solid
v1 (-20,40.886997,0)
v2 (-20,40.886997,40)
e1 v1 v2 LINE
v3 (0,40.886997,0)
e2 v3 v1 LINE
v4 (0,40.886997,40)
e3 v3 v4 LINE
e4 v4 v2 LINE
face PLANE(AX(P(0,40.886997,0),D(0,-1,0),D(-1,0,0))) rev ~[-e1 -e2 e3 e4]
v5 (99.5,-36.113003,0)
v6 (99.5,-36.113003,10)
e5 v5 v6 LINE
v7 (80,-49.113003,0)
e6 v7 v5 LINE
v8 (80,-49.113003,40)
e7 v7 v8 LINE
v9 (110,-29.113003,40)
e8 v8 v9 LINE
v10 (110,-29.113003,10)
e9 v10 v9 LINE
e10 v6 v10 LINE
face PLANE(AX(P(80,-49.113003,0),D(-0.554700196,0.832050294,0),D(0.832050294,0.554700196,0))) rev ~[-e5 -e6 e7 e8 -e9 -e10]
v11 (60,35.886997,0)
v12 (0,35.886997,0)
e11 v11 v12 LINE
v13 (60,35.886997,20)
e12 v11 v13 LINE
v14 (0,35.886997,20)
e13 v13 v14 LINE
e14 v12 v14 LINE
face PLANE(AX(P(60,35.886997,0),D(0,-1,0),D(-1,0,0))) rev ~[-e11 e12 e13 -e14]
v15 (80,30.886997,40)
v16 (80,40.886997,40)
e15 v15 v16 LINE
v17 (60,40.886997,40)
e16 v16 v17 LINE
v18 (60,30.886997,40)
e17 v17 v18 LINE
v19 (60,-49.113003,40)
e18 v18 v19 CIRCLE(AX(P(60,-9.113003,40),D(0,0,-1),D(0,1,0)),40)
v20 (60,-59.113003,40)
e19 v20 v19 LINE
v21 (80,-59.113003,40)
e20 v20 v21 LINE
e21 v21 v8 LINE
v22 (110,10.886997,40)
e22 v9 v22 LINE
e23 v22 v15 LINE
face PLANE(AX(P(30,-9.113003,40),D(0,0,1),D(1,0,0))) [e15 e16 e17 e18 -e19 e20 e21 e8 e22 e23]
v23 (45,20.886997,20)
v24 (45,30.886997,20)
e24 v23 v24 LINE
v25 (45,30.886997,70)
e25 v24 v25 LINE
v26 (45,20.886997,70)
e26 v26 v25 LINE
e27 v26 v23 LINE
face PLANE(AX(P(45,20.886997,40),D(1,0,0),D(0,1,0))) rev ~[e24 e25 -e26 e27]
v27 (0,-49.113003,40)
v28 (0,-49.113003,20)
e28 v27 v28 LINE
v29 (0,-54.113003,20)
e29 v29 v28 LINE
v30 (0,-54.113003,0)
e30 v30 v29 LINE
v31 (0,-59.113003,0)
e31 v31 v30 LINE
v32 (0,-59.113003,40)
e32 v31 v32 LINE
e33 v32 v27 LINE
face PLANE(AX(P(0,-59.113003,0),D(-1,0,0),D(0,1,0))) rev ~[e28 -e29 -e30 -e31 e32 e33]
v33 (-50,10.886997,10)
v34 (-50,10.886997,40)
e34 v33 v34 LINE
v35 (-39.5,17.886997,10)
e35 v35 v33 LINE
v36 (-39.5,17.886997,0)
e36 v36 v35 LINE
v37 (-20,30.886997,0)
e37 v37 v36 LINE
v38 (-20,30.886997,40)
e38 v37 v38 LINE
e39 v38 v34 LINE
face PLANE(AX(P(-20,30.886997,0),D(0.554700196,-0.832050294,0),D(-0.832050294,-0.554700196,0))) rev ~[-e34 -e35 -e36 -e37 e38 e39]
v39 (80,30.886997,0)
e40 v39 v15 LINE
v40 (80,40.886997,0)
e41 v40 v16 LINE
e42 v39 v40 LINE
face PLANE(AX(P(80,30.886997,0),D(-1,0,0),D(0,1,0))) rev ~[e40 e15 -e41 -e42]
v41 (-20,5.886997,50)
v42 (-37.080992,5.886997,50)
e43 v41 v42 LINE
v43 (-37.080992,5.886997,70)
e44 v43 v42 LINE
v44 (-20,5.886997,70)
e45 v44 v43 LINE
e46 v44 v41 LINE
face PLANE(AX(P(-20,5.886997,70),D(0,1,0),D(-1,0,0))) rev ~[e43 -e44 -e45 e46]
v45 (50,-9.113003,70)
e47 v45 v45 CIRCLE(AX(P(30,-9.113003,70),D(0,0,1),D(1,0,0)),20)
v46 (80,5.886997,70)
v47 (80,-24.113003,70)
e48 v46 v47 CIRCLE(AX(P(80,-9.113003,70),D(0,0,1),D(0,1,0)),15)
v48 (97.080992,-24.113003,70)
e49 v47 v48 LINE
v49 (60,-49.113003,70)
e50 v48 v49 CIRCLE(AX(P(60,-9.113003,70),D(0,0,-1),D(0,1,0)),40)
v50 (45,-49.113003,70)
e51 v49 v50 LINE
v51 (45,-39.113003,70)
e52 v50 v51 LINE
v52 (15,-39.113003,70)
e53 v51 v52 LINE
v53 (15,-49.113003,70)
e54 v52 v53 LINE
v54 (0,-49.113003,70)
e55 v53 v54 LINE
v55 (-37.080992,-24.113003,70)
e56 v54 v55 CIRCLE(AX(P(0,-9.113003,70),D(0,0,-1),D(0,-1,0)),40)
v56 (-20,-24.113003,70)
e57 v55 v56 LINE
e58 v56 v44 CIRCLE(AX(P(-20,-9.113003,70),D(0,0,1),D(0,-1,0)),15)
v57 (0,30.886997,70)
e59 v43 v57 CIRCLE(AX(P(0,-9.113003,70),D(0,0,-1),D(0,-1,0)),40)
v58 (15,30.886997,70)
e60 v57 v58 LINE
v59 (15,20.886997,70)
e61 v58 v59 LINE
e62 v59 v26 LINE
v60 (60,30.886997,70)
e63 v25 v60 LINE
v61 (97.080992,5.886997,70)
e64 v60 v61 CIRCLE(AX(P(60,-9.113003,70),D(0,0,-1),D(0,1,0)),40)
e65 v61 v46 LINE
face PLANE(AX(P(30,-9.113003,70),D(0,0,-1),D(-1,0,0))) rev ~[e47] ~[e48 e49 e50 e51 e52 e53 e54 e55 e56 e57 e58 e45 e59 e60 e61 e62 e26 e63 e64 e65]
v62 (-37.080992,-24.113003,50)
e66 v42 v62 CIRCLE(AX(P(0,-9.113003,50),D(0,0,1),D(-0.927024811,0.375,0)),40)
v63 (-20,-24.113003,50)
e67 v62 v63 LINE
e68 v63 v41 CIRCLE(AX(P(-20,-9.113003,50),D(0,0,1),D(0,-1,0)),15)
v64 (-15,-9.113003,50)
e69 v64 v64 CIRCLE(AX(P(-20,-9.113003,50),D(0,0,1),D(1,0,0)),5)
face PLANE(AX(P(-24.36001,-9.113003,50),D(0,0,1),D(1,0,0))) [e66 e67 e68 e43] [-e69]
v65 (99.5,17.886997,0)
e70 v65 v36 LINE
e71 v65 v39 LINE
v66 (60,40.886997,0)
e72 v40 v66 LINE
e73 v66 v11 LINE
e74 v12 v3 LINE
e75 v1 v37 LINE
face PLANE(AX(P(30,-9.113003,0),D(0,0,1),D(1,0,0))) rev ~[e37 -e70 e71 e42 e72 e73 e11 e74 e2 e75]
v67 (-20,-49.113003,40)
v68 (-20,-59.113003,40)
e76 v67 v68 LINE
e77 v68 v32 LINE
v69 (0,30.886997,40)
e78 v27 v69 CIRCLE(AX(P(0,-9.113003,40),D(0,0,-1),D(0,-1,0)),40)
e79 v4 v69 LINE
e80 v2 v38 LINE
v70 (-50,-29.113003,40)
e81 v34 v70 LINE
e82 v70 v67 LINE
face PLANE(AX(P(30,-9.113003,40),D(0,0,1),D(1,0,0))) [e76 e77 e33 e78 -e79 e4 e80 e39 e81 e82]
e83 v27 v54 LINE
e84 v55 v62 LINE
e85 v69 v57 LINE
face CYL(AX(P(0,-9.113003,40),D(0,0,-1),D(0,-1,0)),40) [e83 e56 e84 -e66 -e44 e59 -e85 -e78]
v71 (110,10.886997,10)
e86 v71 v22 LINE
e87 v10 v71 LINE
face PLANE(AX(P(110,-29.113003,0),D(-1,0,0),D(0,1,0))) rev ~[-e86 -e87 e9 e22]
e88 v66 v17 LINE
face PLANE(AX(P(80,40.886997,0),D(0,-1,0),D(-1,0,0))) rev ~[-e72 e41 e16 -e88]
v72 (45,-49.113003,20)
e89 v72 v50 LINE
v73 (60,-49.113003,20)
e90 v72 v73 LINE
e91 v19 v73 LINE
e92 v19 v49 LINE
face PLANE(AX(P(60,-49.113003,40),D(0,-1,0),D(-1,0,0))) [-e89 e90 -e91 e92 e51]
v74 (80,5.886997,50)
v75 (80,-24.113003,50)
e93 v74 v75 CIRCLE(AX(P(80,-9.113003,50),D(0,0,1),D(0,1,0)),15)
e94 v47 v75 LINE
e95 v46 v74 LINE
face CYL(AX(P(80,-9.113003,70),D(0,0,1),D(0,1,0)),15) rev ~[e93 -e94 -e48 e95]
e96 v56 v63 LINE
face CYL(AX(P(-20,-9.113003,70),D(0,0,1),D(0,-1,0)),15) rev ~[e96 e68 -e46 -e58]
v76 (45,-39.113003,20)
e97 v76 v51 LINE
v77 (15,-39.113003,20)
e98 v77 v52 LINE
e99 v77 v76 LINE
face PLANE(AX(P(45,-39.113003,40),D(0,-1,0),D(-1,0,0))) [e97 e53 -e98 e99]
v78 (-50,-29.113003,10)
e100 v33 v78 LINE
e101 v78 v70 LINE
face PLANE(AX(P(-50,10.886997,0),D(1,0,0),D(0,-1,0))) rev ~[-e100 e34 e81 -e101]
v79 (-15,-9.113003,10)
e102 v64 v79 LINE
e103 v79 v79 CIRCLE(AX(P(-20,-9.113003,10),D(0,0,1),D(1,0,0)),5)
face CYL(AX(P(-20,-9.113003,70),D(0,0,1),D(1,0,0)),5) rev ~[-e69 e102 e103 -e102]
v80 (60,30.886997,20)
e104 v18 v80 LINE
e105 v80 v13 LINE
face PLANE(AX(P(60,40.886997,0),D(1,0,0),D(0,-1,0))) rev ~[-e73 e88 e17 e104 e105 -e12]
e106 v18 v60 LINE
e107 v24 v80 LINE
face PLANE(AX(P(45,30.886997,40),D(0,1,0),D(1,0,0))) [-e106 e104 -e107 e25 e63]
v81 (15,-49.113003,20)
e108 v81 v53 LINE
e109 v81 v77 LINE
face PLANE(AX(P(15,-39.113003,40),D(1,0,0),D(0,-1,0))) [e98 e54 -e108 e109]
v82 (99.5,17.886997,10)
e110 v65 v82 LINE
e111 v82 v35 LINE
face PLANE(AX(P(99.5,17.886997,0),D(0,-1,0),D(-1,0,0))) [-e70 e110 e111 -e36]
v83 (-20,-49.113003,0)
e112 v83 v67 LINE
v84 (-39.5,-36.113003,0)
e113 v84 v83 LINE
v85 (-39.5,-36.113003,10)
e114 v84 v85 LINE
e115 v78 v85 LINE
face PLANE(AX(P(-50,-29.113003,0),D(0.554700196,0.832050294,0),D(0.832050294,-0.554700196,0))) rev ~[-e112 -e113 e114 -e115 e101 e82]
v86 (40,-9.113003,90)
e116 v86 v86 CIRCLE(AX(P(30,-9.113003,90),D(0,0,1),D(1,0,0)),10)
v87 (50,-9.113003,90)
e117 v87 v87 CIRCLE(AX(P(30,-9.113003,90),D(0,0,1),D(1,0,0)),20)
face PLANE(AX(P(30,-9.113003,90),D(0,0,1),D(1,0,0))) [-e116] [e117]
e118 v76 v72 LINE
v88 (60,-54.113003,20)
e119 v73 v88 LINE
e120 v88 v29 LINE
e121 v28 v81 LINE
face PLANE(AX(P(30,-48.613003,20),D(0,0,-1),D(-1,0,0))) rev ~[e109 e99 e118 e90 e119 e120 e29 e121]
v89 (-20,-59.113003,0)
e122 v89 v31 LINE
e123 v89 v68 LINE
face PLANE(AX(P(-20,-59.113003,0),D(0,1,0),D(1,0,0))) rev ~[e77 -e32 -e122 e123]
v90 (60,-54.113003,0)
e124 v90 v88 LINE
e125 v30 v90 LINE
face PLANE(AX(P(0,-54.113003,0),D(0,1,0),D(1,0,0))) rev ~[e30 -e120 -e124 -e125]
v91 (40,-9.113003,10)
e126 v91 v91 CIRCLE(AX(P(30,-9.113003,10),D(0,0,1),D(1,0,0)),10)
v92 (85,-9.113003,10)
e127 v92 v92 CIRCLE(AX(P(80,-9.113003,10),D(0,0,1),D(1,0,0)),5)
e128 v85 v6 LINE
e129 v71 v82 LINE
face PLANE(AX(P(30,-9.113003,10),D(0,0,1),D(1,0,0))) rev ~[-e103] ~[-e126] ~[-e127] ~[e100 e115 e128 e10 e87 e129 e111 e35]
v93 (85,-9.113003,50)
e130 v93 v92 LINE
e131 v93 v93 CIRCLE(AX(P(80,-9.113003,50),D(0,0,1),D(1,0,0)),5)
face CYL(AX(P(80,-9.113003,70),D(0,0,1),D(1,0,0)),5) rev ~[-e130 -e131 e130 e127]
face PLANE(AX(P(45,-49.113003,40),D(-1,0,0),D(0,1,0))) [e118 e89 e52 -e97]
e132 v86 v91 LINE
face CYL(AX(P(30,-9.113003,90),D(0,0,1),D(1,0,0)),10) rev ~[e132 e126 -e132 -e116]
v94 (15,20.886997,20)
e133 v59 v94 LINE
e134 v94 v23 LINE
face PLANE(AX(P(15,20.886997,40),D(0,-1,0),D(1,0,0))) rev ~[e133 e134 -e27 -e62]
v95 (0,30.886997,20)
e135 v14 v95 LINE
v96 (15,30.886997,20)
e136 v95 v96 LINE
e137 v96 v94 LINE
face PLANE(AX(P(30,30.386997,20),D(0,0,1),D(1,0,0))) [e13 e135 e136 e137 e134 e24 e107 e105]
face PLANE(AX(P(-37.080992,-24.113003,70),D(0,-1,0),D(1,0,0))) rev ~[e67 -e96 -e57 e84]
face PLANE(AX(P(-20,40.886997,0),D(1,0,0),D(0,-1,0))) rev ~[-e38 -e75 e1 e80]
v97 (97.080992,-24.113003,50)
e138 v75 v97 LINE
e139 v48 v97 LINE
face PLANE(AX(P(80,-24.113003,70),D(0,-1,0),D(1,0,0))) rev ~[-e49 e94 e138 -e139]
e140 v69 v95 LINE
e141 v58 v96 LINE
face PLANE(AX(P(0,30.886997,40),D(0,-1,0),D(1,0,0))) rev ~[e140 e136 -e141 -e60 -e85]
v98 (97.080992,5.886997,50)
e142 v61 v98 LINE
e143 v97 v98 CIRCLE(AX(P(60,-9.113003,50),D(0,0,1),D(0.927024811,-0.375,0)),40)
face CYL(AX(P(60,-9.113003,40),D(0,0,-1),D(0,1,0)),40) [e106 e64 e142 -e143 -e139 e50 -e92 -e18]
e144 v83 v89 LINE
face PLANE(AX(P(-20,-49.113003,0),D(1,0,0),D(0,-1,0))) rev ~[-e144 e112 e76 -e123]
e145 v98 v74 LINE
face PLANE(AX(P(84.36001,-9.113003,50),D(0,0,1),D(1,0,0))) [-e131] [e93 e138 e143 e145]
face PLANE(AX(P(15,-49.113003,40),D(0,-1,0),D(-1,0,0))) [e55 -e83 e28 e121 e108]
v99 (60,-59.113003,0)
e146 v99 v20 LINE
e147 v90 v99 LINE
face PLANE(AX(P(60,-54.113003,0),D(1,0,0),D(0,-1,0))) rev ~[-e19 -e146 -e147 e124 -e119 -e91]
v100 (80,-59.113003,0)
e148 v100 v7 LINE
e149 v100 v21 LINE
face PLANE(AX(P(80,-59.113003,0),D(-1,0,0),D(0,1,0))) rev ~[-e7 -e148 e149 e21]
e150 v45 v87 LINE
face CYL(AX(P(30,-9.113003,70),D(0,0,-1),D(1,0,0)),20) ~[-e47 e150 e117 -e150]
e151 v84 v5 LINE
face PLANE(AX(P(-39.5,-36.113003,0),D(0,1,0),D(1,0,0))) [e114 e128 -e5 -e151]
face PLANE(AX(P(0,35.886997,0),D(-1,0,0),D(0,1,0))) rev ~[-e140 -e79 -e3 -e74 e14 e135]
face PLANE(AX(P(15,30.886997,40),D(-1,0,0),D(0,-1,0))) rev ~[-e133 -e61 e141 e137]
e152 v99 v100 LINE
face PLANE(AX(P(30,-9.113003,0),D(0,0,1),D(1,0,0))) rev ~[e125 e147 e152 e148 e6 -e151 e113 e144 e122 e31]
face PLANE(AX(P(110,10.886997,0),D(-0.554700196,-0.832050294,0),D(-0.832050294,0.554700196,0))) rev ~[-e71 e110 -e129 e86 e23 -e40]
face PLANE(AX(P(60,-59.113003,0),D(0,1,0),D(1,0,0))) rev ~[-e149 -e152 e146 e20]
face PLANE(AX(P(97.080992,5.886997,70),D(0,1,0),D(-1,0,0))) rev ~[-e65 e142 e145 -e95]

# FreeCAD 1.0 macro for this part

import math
import FreeCAD as App
import Part
import Sketcher
from FreeCAD import Vector
Q = App.Units.Quantity

doc = App.newDocument("Part")
params = doc.addObject("Spreadsheet::Sheet", "Params")
for row, (alias, value) in enumerate([
    ("sketch1_width", "20 mm"),
    ("sketch1_width2", "60 mm"),
    ("sketch1_height", "10 mm"),
    ("sketch1_height2", "40 mm"),
    ("sketch1_height3", "5 mm"),
    ("pad1_length", "40 mm"),
    ("sketch2_radius", "40 mm"),
    ("sketch2_width", "15 mm"),
    ("sketch2_width2", "30 mm"),
    ("sketch2_height", "10 mm"),
    ("pad2_length", "30 mm"),
    ("sketch3_diameter", "40 mm"),
    ("pad3_length", "20 mm"),
    ("sketch4_diameter", "20 mm"),
    ("pocket1_length", "185 mm"),
    ("sketch5_diameter", "10 mm"),
    ("pocket2_length", "185 mm"),
    ("sketch6_diameter", "10 mm"),
    ("sketch6_radius", "15 mm"),
    ("sketch6_radius2", "40 mm"),
    ("pocket3_length", "20 mm"),
    ("sketch7_width", "15 mm"),
    ("sketch7_width2", "30 mm"),
    ("sketch7_height", "5 mm"),
    ("sketch7_height2", "10 mm"),
    ("pocket4_length", "20 mm"),
    ("sketch8_width", "60 mm"),
    ("sketch8_width2", "15 mm"),
    ("sketch8_height", "5 mm"),
    ("sketch8_height2", "10 mm"),
    ("pocket5_length", "20 mm"),
    ("sketch9_width", "139 mm"),
    ("sketch9_height", "40 mm"),
    ("pocket6_length", "10 mm"),
], start=1):
    params.set(f"A{row}", alias)
    params.set(f"B{row}", "=" + value)
    params.setAlias(f"B{row}", alias)

body = doc.addObject("PartDesign::Body", "Body")

# Sketch on XY plane
sketch1 = doc.addObject("Sketcher::SketchObject", "Sketch")
body.addObject(sketch1)
sketch1.AttachmentSupport = (doc.XY_Plane, [""])
sketch1.MapMode = "FlatFace"
sketch1.addGeometry([
    Part.LineSegment(Vector(0, 40.886997, 0), Vector(-20, 40.886997, 0)),  # 0
    Part.LineSegment(Vector(-20, 40.886997, 0), Vector(-20, 30.886997, 0)),  # 1
    Part.LineSegment(Vector(-20, 30.886997, 0), Vector(-50, 10.886997, 0)),  # 2
    Part.LineSegment(Vector(-50, 10.886997, 0), Vector(-50, -29.113003, 0)),  # 3
    Part.LineSegment(Vector(-50, -29.113003, 0), Vector(-20, -49.113003, 0)),  # 4
    Part.LineSegment(Vector(-20, -49.113003, 0), Vector(-20, -59.113003, 0)),  # 5
    Part.LineSegment(Vector(-20, -59.113003, 0), Vector(0, -59.113003, 0)),  # 6
    Part.LineSegment(Vector(0, -59.113003, 0), Vector(0, -54.113003, 0)),  # 7
    Part.LineSegment(Vector(0, -54.113003, 0), Vector(60, -54.113003, 0)),  # 8
    Part.LineSegment(Vector(60, -54.113003, 0), Vector(60, -59.113003, 0)),  # 9
    Part.LineSegment(Vector(60, -59.113003, 0), Vector(80, -59.113003, 0)),  # 10
    Part.LineSegment(Vector(80, -59.113003, 0), Vector(80, -49.113003, 0)),  # 11
    Part.LineSegment(Vector(80, -49.113003, 0), Vector(110, -29.113003, 0)),  # 12
    Part.LineSegment(Vector(110, -29.113003, 0), Vector(110, 10.886997, 0)),  # 13
    Part.LineSegment(Vector(110, 10.886997, 0), Vector(80, 30.886997, 0)),  # 14
    Part.LineSegment(Vector(80, 30.886997, 0), Vector(80, 40.886997, 0)),  # 15
    Part.LineSegment(Vector(80, 40.886997, 0), Vector(60, 40.886997, 0)),  # 16
    Part.LineSegment(Vector(60, 40.886997, 0), Vector(60, 35.886997, 0)),  # 17
    Part.LineSegment(Vector(60, 35.886997, 0), Vector(0, 35.886997, 0)),  # 18
    Part.LineSegment(Vector(0, 35.886997, 0), Vector(0, 40.886997, 0)),  # 19
], False)
sketch1.addConstraint([
    Sketcher.Constraint("Coincident", 0, 2, 1, 1),
    Sketcher.Constraint("Coincident", 1, 2, 2, 1),
    Sketcher.Constraint("Coincident", 2, 2, 3, 1),
    Sketcher.Constraint("Coincident", 3, 2, 4, 1),
    Sketcher.Constraint("Coincident", 4, 2, 5, 1),
    Sketcher.Constraint("Coincident", 5, 2, 6, 1),
    Sketcher.Constraint("Coincident", 6, 2, 7, 1),
    Sketcher.Constraint("Coincident", 7, 2, 8, 1),
    Sketcher.Constraint("Coincident", 8, 2, 9, 1),
    Sketcher.Constraint("Coincident", 9, 2, 10, 1),
    Sketcher.Constraint("Coincident", 10, 2, 11, 1),
    Sketcher.Constraint("Coincident", 11, 2, 12, 1),
    Sketcher.Constraint("Coincident", 12, 2, 13, 1),
    Sketcher.Constraint("Coincident", 13, 2, 14, 1),
    Sketcher.Constraint("Coincident", 14, 2, 15, 1),
    Sketcher.Constraint("Coincident", 15, 2, 16, 1),
    Sketcher.Constraint("Coincident", 16, 2, 17, 1),
    Sketcher.Constraint("Coincident", 17, 2, 18, 1),
    Sketcher.Constraint("Coincident", 18, 2, 19, 1),
    Sketcher.Constraint("Coincident", 19, 2, 0, 1),
    Sketcher.Constraint("Horizontal", 0),
    Sketcher.Constraint("Vertical", 1),
    Sketcher.Constraint("Vertical", 3),
    Sketcher.Constraint("Vertical", 5),
    Sketcher.Constraint("Horizontal", 6),
    Sketcher.Constraint("Vertical", 7),
    Sketcher.Constraint("Horizontal", 8),
    Sketcher.Constraint("Vertical", 9),
    Sketcher.Constraint("Horizontal", 10),
    Sketcher.Constraint("Vertical", 11),
    Sketcher.Constraint("Vertical", 13),
    Sketcher.Constraint("Vertical", 15),
    Sketcher.Constraint("Horizontal", 16),
    Sketcher.Constraint("Vertical", 17),
    Sketcher.Constraint("Horizontal", 18),
    Sketcher.Constraint("Vertical", 19),
    Sketcher.Constraint("PointOnObject", 6, 2, -2),
    Sketcher.Constraint("PointOnObject", 18, 2, -2),
    Sketcher.Constraint("Parallel", 2, 12),
    Sketcher.Constraint("Parallel", 4, 14),
    Sketcher.Constraint("Horizontal", 6, 2, 9, 2),
    Sketcher.Constraint("Horizontal", 4, 2, 11, 2),
    Sketcher.Constraint("Horizontal", 3, 2, 12, 2),
    Sketcher.Constraint("Horizontal", 2, 2, 13, 2),
    Sketcher.Constraint("Horizontal", 1, 2, 14, 2),
    Sketcher.Constraint("Horizontal", 0, 2, 15, 2),
    Sketcher.Constraint("Vertical", 1, 2, 4, 2),
    Sketcher.Constraint("Vertical", 11, 2, 14, 2),
    Sketcher.Constraint("Vertical", 9, 2, 16, 2),
    Sketcher.Constraint("Equal", 6, 10),
    Sketcher.Constraint("Equal", 1, 5),
    Sketcher.Constraint("Equal", 9, 17),
    Sketcher.Constraint("DistanceX", 0, 2, 0, 1, Q("20 mm")),
    Sketcher.Constraint("DistanceX", 8, 1, 8, 2, Q("60 mm")),
    Sketcher.Constraint("DistanceY", 1, 2, 1, 1, Q("10 mm")),
    Sketcher.Constraint("DistanceY", 3, 2, 3, 1, Q("40 mm")),
    Sketcher.Constraint("DistanceY", 7, 1, 7, 2, Q("5 mm")),
    Sketcher.Constraint("DistanceX", 2, 2, -1, 1, Q("50 mm")),
    Sketcher.Constraint("DistanceY", 2, 2, 1, 2, Q("20 mm")),
    Sketcher.Constraint("DistanceY", -1, 1, 0, 2, Q("40.886997 mm")),
])
sketch1.setExpression("Constraints[52]", "Params.sketch1_width")
sketch1.setExpression("Constraints[53]", "Params.sketch1_width2")
sketch1.setExpression("Constraints[54]", "Params.sketch1_height")
sketch1.setExpression("Constraints[55]", "Params.sketch1_height2")
sketch1.setExpression("Constraints[56]", "Params.sketch1_height3")
pad1 = doc.addObject("PartDesign::Pad", "Pad")
body.addObject(pad1)
pad1.Profile = sketch1
pad1.setExpression("Length", "Params.pad1_length")

# Sketch on XY plane
sketch2 = doc.addObject("Sketcher::SketchObject", "Sketch001")
body.addObject(sketch2)
sketch2.AttachmentSupport = (doc.XY_Plane, [""])
sketch2.MapMode = "FlatFace"
sketch2.AttachmentOffset = App.Placement(Vector(0, 0, 40), App.Rotation())
sketch2.addGeometry([
    Part.LineSegment(Vector(15, 30.886997, 0), Vector(0, 30.886997, 0)),  # 0
    Part.ArcOfCircle(Part.Circle(Vector(0, -9.113003, 0), Vector(0, 0, 1), 40), math.radians(90), math.radians(270)),  # 1
    Part.LineSegment(Vector(0, -49.113003, 0), Vector(15, -49.113003, 0)),  # 2
    Part.LineSegment(Vector(15, -49.113003, 0), Vector(15, -39.113003, 0)),  # 3
    Part.LineSegment(Vector(15, -39.113003, 0), Vector(45, -39.113003, 0)),  # 4
    Part.LineSegment(Vector(45, -39.113003, 0), Vector(45, -49.113003, 0)),  # 5
    Part.LineSegment(Vector(45, -49.113003, 0), Vector(60, -49.113003, 0)),  # 6
    Part.ArcOfCircle(Part.Circle(Vector(60, -9.113003, 0), Vector(0, 0, 1), 40), math.radians(-90), math.radians(90)),  # 7
    Part.LineSegment(Vector(60, 30.886997, 0), Vector(45, 30.886997, 0)),  # 8
    Part.LineSegment(Vector(45, 30.886997, 0), Vector(45, 20.886997, 0)),  # 9
    Part.LineSegment(Vector(45, 20.886997, 0), Vector(15, 20.886997, 0)),  # 10
    Part.LineSegment(Vector(15, 20.886997, 0), Vector(15, 30.886997, 0)),  # 11
], False)
sketch2.addConstraint([
    Sketcher.Constraint("Tangent", 0, 2, 1, 1),
    Sketcher.Constraint("Tangent", 1, 2, 2, 1),
    Sketcher.Constraint("Coincident", 2, 2, 3, 1),
    Sketcher.Constraint("Coincident", 3, 2, 4, 1),
    Sketcher.Constraint("Coincident", 4, 2, 5, 1),
    Sketcher.Constraint("Coincident", 5, 2, 6, 1),
    Sketcher.Constraint("Tangent", 6, 2, 7, 1),
    Sketcher.Constraint("Tangent", 7, 2, 8, 1),
    Sketcher.Constraint("Coincident", 8, 2, 9, 1),
    Sketcher.Constraint("Coincident", 9, 2, 10, 1),
    Sketcher.Constraint("Coincident", 10, 2, 11, 1),
    Sketcher.Constraint("Coincident", 11, 2, 0, 1),
    Sketcher.Constraint("Horizontal", 0),
    Sketcher.Constraint("Horizontal", 2),
    Sketcher.Constraint("Vertical", 3),
    Sketcher.Constraint("Horizontal", 4),
    Sketcher.Constraint("Vertical", 5),
    Sketcher.Constraint("Horizontal", 6),
    Sketcher.Constraint("Horizontal", 8),
    Sketcher.Constraint("Vertical", 9),
    Sketcher.Constraint("Horizontal", 10),
    Sketcher.Constraint("Vertical", 11),
    Sketcher.Constraint("Equal", 1, 7),
    Sketcher.Constraint("PointOnObject", 1, 3, -2),
    Sketcher.Constraint("Horizontal", 1, 3, 7, 3),
    Sketcher.Constraint("Vertical", 5, 2, 8, 2),
    Sketcher.Constraint("Vertical", 3, 2, 10, 2),
    Sketcher.Constraint("Equal", 2, 6),
    Sketcher.Constraint("Equal", 5, 9),
    Sketcher.Constraint("Radius", 1, Q("40 mm")),
    Sketcher.Constraint("DistanceX", 0, 2, 0, 1, Q("15 mm")),
    Sketcher.Constraint("DistanceX", 4, 1, 4, 2, Q("30 mm")),
    Sketcher.Constraint("DistanceY", 3, 1, 3, 2, Q("10 mm")),
    Sketcher.Constraint("DistanceY", 1, 3, -1, 1, Q("9.113003 mm")),
])
sketch2.setExpression("Constraints[29]", "Params.sketch2_radius")
sketch2.setExpression("Constraints[30]", "Params.sketch2_width")
sketch2.setExpression("Constraints[31]", "Params.sketch2_width2")
sketch2.setExpression("Constraints[32]", "Params.sketch2_height")
pad2 = doc.addObject("PartDesign::Pad", "Pad001")
body.addObject(pad2)
pad2.Profile = sketch2
pad2.setExpression("Length", "Params.pad2_length")

# Sketch on XY plane
sketch3 = doc.addObject("Sketcher::SketchObject", "Sketch002")
body.addObject(sketch3)
sketch3.AttachmentSupport = (doc.XY_Plane, [""])
sketch3.MapMode = "FlatFace"
sketch3.AttachmentOffset = App.Placement(Vector(0, 0, 70), App.Rotation())
sketch3.addGeometry(Part.Circle(Vector(30, -9.113003, 0), Vector(0, 0, 1), 20), False)
sketch3.addConstraint([
    Sketcher.Constraint("Diameter", 0, Q("40 mm")),
    Sketcher.Constraint("DistanceX", -1, 1, 0, 3, Q("30 mm")),
    Sketcher.Constraint("DistanceY", 0, 3, -1, 1, Q("9.113003 mm")),
])
sketch3.setExpression("Constraints[0]", "Params.sketch3_diameter")
pad3 = doc.addObject("PartDesign::Pad", "Pad002")
body.addObject(pad3)
pad3.Profile = sketch3
pad3.setExpression("Length", "Params.pad3_length")

# Sketch on XY plane
sketch4 = doc.addObject("Sketcher::SketchObject", "Sketch003")
body.addObject(sketch4)
sketch4.AttachmentSupport = (doc.XY_Plane, [""])
sketch4.MapMode = "FlatFace"
sketch4.AttachmentOffset = App.Placement(Vector(0, 0, 90), App.Rotation())
sketch4.addGeometry(Part.Circle(Vector(30, -9.113003, 0), Vector(0, 0, 1), 10), False)
sketch4.addConstraint([
    Sketcher.Constraint("Diameter", 0, Q("20 mm")),
    Sketcher.Constraint("DistanceX", -1, 1, 0, 3, Q("30 mm")),
    Sketcher.Constraint("DistanceY", 0, 3, -1, 1, Q("9.113003 mm")),
])
sketch4.setExpression("Constraints[0]", "Params.sketch4_diameter")
pocket1 = doc.addObject("PartDesign::Pocket", "Pocket")
body.addObject(pocket1)
pocket1.Profile = sketch4
pocket1.setExpression("Length", "Params.pocket1_length")

# Sketch on XY plane
sketch5 = doc.addObject("Sketcher::SketchObject", "Sketch004")
body.addObject(sketch5)
sketch5.AttachmentSupport = (doc.XY_Plane, [""])
sketch5.MapMode = "FlatFace"
sketch5.AttachmentOffset = App.Placement(Vector(0, 0, 70), App.Rotation())
sketch5.addGeometry([
    Part.Circle(Vector(-20, -9.113003, 0), Vector(0, 0, 1), 5),
    Part.Circle(Vector(80, -9.113003, 0), Vector(0, 0, 1), 5),
], False)
sketch5.addConstraint([
    Sketcher.Constraint("Equal", 0, 1),
    Sketcher.Constraint("Horizontal", 0, 3, 1, 3),
    Sketcher.Constraint("Diameter", 0, Q("10 mm")),
    Sketcher.Constraint("DistanceX", 0, 3, -1, 1, Q("20 mm")),
    Sketcher.Constraint("DistanceX", -1, 1, 1, 3, Q("80 mm")),
    Sketcher.Constraint("DistanceY", 0, 3, -1, 1, Q("9.113003 mm")),
])
sketch5.setExpression("Constraints[2]", "Params.sketch5_diameter")
pocket2 = doc.addObject("PartDesign::Pocket", "Pocket001")
body.addObject(pocket2)
pocket2.Profile = sketch5
pocket2.setExpression("Length", "Params.pocket2_length")

# Sketch on XY plane
sketch6 = doc.addObject("Sketcher::SketchObject", "Sketch005")
body.addObject(sketch6)
sketch6.AttachmentSupport = (doc.XY_Plane, [""])
sketch6.MapMode = "FlatFace"
sketch6.AttachmentOffset = App.Placement(Vector(0, 0, 70), App.Rotation())
sketch6.addGeometry([
    Part.ArcOfCircle(Part.Circle(Vector(-20, -9.113003, 0), Vector(0, 0, 1), 15), math.radians(-90), math.radians(90)),  # 0
    Part.LineSegment(Vector(-20, 5.886997, 0), Vector(-37.080992, 5.886997, 0)),  # 1
    Part.ArcOfCircle(Part.Circle(Vector(0, -9.113003, 0), Vector(0, 0, 1), 40), math.radians(157.975687), math.radians(202.024313)),  # 2
    Part.LineSegment(Vector(-37.080992, -24.113003, 0), Vector(-20, -24.113003, 0)),  # 3
    Part.Circle(Vector(-20, -9.113003, 0), Vector(0, 0, 1), 5),  # 4
    Part.LineSegment(Vector(97.080992, 5.886997, 0), Vector(80, 5.886997, 0)),  # 5
    Part.ArcOfCircle(Part.Circle(Vector(80, -9.113003, 0), Vector(0, 0, 1), 15), math.radians(90), math.radians(270)),  # 6
    Part.LineSegment(Vector(80, -24.113003, 0), Vector(97.080992, -24.113003, 0)),  # 7
    Part.ArcOfCircle(Part.Circle(Vector(60, -9.113003, 0), Vector(0, 0, 1), 40), math.radians(-22.024313), math.radians(22.024313)),  # 8
    Part.Circle(Vector(80, -9.113003, 0), Vector(0, 0, 1), 5),  # 9
], False)
sketch6.addConstraint([
    Sketcher.Constraint("Tangent", 0, 2, 1, 1),
    Sketcher.Constraint("Coincident", 1, 2, 2, 1),
    Sketcher.Constraint("Coincident", 2, 2, 3, 1),
    Sketcher.Constraint("Tangent", 3, 2, 0, 1),
    Sketcher.Constraint("Tangent", 5, 2, 6, 1),
    Sketcher.Constraint("Tangent", 6, 2, 7, 1),
    Sketcher.Constraint("Coincident", 7, 2, 8, 1),
    Sketcher.Constraint("Coincident", 8, 2, 5, 1),
    Sketcher.Constraint("Horizontal", 1),
    Sketcher.Constraint("Horizontal", 3),
    Sketcher.Constraint("Horizontal", 5),
    Sketcher.Constraint("Horizontal", 7),
    Sketcher.Constraint("Coincident", 4, 3, 0, 3),
    Sketcher.Constraint("Coincident", 9, 3, 6, 3),
    Sketcher.Constraint("Equal", 0, 6),
    Sketcher.Constraint("Equal", 2, 8),
    Sketcher.Constraint("Equal", 4, 9),
    Sketcher.Constraint("PointOnObject", 2, 3, -2),
    Sketcher.Constraint("Horizontal", 0, 3, 2, 3),
    Sketcher.Constraint("Horizontal", 4, 3, 6, 3),
    Sketcher.Constraint("Horizontal", 6, 3, 8, 3),
    Sketcher.Constraint("Equal", 3, 5),
    Sketcher.Constraint("Diameter", 4, Q("10 mm")),
    Sketcher.Constraint("Radius", 0, Q("15 mm")),
    Sketcher.Constraint("Radius", 2, Q("40 mm")),
    Sketcher.Constraint("DistanceX", 0, 3, -1, 1, Q("20 mm")),
    Sketcher.Constraint("DistanceX", -1, 1, 6, 3, Q("80 mm")),
    Sketcher.Constraint("DistanceY", 0, 3, -1, 1, Q("9.113003 mm")),
])
sketch6.setExpression("Constraints[22]", "Params.sketch6_diameter")
sketch6.setExpression("Constraints[23]", "Params.sketch6_radius")
sketch6.setExpression("Constraints[24]", "Params.sketch6_radius2")
pocket3 = doc.addObject("PartDesign::Pocket", "Pocket002")
body.addObject(pocket3)
pocket3.Profile = sketch6
pocket3.setExpression("Length", "Params.pocket3_length")

# Sketch on XY plane
sketch7 = doc.addObject("Sketcher::SketchObject", "Sketch006")
body.addObject(sketch7)
sketch7.AttachmentSupport = (doc.XY_Plane, [""])
sketch7.MapMode = "FlatFace"
sketch7.AttachmentOffset = App.Placement(Vector(0, 0, 40), App.Rotation())
sketch7.addGeometry([
    Part.LineSegment(Vector(0, 35.886997, 0), Vector(0, 30.886997, 0)),  # 0
    Part.LineSegment(Vector(0, 30.886997, 0), Vector(15, 30.886997, 0)),  # 1
    Part.LineSegment(Vector(15, 30.886997, 0), Vector(15, 20.886997, 0)),  # 2
    Part.LineSegment(Vector(15, 20.886997, 0), Vector(45, 20.886997, 0)),  # 3
    Part.LineSegment(Vector(45, 20.886997, 0), Vector(45, 30.886997, 0)),  # 4
    Part.LineSegment(Vector(45, 30.886997, 0), Vector(60, 30.886997, 0)),  # 5
    Part.LineSegment(Vector(60, 30.886997, 0), Vector(60, 35.886997, 0)),  # 6
    Part.LineSegment(Vector(60, 35.886997, 0), Vector(0, 35.886997, 0)),  # 7
], False)
sketch7.addConstraint([
    Sketcher.Constraint("Coincident", 0, 2, 1, 1),
    Sketcher.Constraint("Coincident", 1, 2, 2, 1),
    Sketcher.Constraint("Coincident", 2, 2, 3, 1),
    Sketcher.Constraint("Coincident", 3, 2, 4, 1),
    Sketcher.Constraint("Coincident", 4, 2, 5, 1),
    Sketcher.Constraint("Coincident", 5, 2, 6, 1),
    Sketcher.Constraint("Coincident", 6, 2, 7, 1),
    Sketcher.Constraint("Coincident", 7, 2, 0, 1),
    Sketcher.Constraint("Vertical", 0),
    Sketcher.Constraint("Horizontal", 1),
    Sketcher.Constraint("Vertical", 2),
    Sketcher.Constraint("Horizontal", 3),
    Sketcher.Constraint("Vertical", 4),
    Sketcher.Constraint("Horizontal", 5),
    Sketcher.Constraint("Vertical", 6),
    Sketcher.Constraint("Horizontal", 7),
    Sketcher.Constraint("PointOnObject", 0, 2, -2),
    Sketcher.Constraint("Horizontal", 1, 2, 4, 2),
    Sketcher.Constraint("Equal", 1, 5),
    Sketcher.Constraint("DistanceX", 1, 1, 1, 2, Q("15 mm")),
    Sketcher.Constraint("DistanceX", 3, 1, 3, 2, Q("30 mm")),
    Sketcher.Constraint("DistanceY", 0, 2, 0, 1, Q("5 mm")),
    Sketcher.Constraint("DistanceY", 2, 2, 2, 1, Q("10 mm")),
    Sketcher.Constraint("DistanceY", -1, 1, 0, 2, Q("30.886997 mm")),
])
sketch7.setExpression("Constraints[19]", "Params.sketch7_width")
sketch7.setExpression("Constraints[20]", "Params.sketch7_width2")
sketch7.setExpression("Constraints[21]", "Params.sketch7_height")
sketch7.setExpression("Constraints[22]", "Params.sketch7_height2")
pocket4 = doc.addObject("PartDesign::Pocket", "Pocket003")
body.addObject(pocket4)
pocket4.Profile = sketch7
pocket4.setExpression("Length", "Params.pocket4_length")

# Sketch on XY plane
sketch8 = doc.addObject("Sketcher::SketchObject", "Sketch007")
body.addObject(sketch8)
sketch8.AttachmentSupport = (doc.XY_Plane, [""])
sketch8.MapMode = "FlatFace"
sketch8.AttachmentOffset = App.Placement(Vector(0, 0, 40), App.Rotation())
sketch8.addGeometry([
    Part.LineSegment(Vector(0, -49.113003, 0), Vector(0, -54.113003, 0)),  # 0
    Part.LineSegment(Vector(0, -54.113003, 0), Vector(60, -54.113003, 0)),  # 1
    Part.LineSegment(Vector(60, -54.113003, 0), Vector(60, -49.113003, 0)),  # 2
    Part.LineSegment(Vector(60, -49.113003, 0), Vector(45, -49.113003, 0)),  # 3
    Part.LineSegment(Vector(45, -49.113003, 0), Vector(45, -39.113003, 0)),  # 4
    Part.LineSegment(Vector(45, -39.113003, 0), Vector(15, -39.113003, 0)),  # 5
    Part.LineSegment(Vector(15, -39.113003, 0), Vector(15, -49.113003, 0)),  # 6
    Part.LineSegment(Vector(15, -49.113003, 0), Vector(0, -49.113003, 0)),  # 7
], False)
sketch8.addConstraint([
    Sketcher.Constraint("Coincident", 0, 2, 1, 1),
    Sketcher.Constraint("Coincident", 1, 2, 2, 1),
    Sketcher.Constraint("Coincident", 2, 2, 3, 1),
    Sketcher.Constraint("Coincident", 3, 2, 4, 1),
    Sketcher.Constraint("Coincident", 4, 2, 5, 1),
    Sketcher.Constraint("Coincident", 5, 2, 6, 1),
    Sketcher.Constraint("Coincident", 6, 2, 7, 1),
    Sketcher.Constraint("Coincident", 7, 2, 0, 1),
    Sketcher.Constraint("Vertical", 0),
    Sketcher.Constraint("Horizontal", 1),
    Sketcher.Constraint("Vertical", 2),
    Sketcher.Constraint("Horizontal", 3),
    Sketcher.Constraint("Vertical", 4),
    Sketcher.Constraint("Horizontal", 5),
    Sketcher.Constraint("Vertical", 6),
    Sketcher.Constraint("Horizontal", 7),
    Sketcher.Constraint("PointOnObject", 0, 2, -2),
    Sketcher.Constraint("Horizontal", 3, 2, 6, 2),
    Sketcher.Constraint("Equal", 3, 7),
    Sketcher.Constraint("DistanceX", 1, 1, 1, 2, Q("60 mm")),
    Sketcher.Constraint("DistanceX", 3, 2, 3, 1, Q("15 mm")),
    Sketcher.Constraint("DistanceY", 0, 2, 0, 1, Q("5 mm")),
    Sketcher.Constraint("DistanceY", 4, 1, 4, 2, Q("10 mm")),
    Sketcher.Constraint("DistanceY", 0, 2, -1, 1, Q("54.113003 mm")),
])
sketch8.setExpression("Constraints[19]", "Params.sketch8_width")
sketch8.setExpression("Constraints[20]", "Params.sketch8_width2")
sketch8.setExpression("Constraints[21]", "Params.sketch8_height")
sketch8.setExpression("Constraints[22]", "Params.sketch8_height2")
pocket5 = doc.addObject("PartDesign::Pocket", "Pocket004")
body.addObject(pocket5)
pocket5.Profile = sketch8
pocket5.setExpression("Length", "Params.pocket5_length")

# Sketch on XY plane
sketch9 = doc.addObject("Sketcher::SketchObject", "Sketch008")
body.addObject(sketch9)
sketch9.AttachmentSupport = (doc.XY_Plane, [""])
sketch9.MapMode = "FlatFace"
sketch9.addGeometry([
    Part.LineSegment(Vector(-39.5, 17.886997, 0), Vector(99.5, 17.886997, 0)),  # 0
    Part.LineSegment(Vector(99.5, 17.886997, 0), Vector(110, 10.886997, 0)),  # 1
    Part.LineSegment(Vector(110, 10.886997, 0), Vector(110, -29.113003, 0)),  # 2
    Part.LineSegment(Vector(110, -29.113003, 0), Vector(99.5, -36.113003, 0)),  # 3
    Part.LineSegment(Vector(99.5, -36.113003, 0), Vector(-39.5, -36.113003, 0)),  # 4
    Part.LineSegment(Vector(-39.5, -36.113003, 0), Vector(-50, -29.113003, 0)),  # 5
    Part.LineSegment(Vector(-50, -29.113003, 0), Vector(-50, 10.886997, 0)),  # 6
    Part.LineSegment(Vector(-50, 10.886997, 0), Vector(-39.5, 17.886997, 0)),  # 7
], False)
sketch9.addConstraint([
    Sketcher.Constraint("Coincident", 0, 2, 1, 1),
    Sketcher.Constraint("Coincident", 1, 2, 2, 1),
    Sketcher.Constraint("Coincident", 2, 2, 3, 1),
    Sketcher.Constraint("Coincident", 3, 2, 4, 1),
    Sketcher.Constraint("Coincident", 4, 2, 5, 1),
    Sketcher.Constraint("Coincident", 5, 2, 6, 1),
    Sketcher.Constraint("Coincident", 6, 2, 7, 1),
    Sketcher.Constraint("Coincident", 7, 2, 0, 1),
    Sketcher.Constraint("Horizontal", 0),
    Sketcher.Constraint("Vertical", 2),
    Sketcher.Constraint("Horizontal", 4),
    Sketcher.Constraint("Vertical", 6),
    Sketcher.Constraint("Parallel", 1, 5),
    Sketcher.Constraint("Parallel", 3, 7),
    Sketcher.Constraint("Horizontal", 2, 2, 5, 2),
    Sketcher.Constraint("Horizontal", 1, 2, 6, 2),
    Sketcher.Constraint("Vertical", 0, 2, 3, 2),
    Sketcher.Constraint("Vertical", 4, 2, 7, 2),
    Sketcher.Constraint("DistanceX", 0, 1, 0, 2, Q("139 mm")),
    Sketcher.Constraint("DistanceY", 2, 2, 2, 1, Q("40 mm")),
    Sketcher.Constraint("DistanceX", -1, 1, 1, 2, Q("110 mm")),
    Sketcher.Constraint("DistanceX", 5, 2, -1, 1, Q("50 mm")),
    Sketcher.Constraint("DistanceY", 1, 2, 0, 2, Q("7 mm")),
    Sketcher.Constraint("DistanceY", -1, 1, 0, 2, Q("17.886997 mm")),
])
sketch9.setExpression("Constraints[18]", "Params.sketch9_width")
sketch9.setExpression("Constraints[19]", "Params.sketch9_height")
pocket6 = doc.addObject("PartDesign::Pocket", "Pocket005")
body.addObject(pocket6)
pocket6.Profile = sketch9
pocket6.setExpression("Length", "Params.pocket6_length")
pocket6.Reversed = True

doc.recompute()
